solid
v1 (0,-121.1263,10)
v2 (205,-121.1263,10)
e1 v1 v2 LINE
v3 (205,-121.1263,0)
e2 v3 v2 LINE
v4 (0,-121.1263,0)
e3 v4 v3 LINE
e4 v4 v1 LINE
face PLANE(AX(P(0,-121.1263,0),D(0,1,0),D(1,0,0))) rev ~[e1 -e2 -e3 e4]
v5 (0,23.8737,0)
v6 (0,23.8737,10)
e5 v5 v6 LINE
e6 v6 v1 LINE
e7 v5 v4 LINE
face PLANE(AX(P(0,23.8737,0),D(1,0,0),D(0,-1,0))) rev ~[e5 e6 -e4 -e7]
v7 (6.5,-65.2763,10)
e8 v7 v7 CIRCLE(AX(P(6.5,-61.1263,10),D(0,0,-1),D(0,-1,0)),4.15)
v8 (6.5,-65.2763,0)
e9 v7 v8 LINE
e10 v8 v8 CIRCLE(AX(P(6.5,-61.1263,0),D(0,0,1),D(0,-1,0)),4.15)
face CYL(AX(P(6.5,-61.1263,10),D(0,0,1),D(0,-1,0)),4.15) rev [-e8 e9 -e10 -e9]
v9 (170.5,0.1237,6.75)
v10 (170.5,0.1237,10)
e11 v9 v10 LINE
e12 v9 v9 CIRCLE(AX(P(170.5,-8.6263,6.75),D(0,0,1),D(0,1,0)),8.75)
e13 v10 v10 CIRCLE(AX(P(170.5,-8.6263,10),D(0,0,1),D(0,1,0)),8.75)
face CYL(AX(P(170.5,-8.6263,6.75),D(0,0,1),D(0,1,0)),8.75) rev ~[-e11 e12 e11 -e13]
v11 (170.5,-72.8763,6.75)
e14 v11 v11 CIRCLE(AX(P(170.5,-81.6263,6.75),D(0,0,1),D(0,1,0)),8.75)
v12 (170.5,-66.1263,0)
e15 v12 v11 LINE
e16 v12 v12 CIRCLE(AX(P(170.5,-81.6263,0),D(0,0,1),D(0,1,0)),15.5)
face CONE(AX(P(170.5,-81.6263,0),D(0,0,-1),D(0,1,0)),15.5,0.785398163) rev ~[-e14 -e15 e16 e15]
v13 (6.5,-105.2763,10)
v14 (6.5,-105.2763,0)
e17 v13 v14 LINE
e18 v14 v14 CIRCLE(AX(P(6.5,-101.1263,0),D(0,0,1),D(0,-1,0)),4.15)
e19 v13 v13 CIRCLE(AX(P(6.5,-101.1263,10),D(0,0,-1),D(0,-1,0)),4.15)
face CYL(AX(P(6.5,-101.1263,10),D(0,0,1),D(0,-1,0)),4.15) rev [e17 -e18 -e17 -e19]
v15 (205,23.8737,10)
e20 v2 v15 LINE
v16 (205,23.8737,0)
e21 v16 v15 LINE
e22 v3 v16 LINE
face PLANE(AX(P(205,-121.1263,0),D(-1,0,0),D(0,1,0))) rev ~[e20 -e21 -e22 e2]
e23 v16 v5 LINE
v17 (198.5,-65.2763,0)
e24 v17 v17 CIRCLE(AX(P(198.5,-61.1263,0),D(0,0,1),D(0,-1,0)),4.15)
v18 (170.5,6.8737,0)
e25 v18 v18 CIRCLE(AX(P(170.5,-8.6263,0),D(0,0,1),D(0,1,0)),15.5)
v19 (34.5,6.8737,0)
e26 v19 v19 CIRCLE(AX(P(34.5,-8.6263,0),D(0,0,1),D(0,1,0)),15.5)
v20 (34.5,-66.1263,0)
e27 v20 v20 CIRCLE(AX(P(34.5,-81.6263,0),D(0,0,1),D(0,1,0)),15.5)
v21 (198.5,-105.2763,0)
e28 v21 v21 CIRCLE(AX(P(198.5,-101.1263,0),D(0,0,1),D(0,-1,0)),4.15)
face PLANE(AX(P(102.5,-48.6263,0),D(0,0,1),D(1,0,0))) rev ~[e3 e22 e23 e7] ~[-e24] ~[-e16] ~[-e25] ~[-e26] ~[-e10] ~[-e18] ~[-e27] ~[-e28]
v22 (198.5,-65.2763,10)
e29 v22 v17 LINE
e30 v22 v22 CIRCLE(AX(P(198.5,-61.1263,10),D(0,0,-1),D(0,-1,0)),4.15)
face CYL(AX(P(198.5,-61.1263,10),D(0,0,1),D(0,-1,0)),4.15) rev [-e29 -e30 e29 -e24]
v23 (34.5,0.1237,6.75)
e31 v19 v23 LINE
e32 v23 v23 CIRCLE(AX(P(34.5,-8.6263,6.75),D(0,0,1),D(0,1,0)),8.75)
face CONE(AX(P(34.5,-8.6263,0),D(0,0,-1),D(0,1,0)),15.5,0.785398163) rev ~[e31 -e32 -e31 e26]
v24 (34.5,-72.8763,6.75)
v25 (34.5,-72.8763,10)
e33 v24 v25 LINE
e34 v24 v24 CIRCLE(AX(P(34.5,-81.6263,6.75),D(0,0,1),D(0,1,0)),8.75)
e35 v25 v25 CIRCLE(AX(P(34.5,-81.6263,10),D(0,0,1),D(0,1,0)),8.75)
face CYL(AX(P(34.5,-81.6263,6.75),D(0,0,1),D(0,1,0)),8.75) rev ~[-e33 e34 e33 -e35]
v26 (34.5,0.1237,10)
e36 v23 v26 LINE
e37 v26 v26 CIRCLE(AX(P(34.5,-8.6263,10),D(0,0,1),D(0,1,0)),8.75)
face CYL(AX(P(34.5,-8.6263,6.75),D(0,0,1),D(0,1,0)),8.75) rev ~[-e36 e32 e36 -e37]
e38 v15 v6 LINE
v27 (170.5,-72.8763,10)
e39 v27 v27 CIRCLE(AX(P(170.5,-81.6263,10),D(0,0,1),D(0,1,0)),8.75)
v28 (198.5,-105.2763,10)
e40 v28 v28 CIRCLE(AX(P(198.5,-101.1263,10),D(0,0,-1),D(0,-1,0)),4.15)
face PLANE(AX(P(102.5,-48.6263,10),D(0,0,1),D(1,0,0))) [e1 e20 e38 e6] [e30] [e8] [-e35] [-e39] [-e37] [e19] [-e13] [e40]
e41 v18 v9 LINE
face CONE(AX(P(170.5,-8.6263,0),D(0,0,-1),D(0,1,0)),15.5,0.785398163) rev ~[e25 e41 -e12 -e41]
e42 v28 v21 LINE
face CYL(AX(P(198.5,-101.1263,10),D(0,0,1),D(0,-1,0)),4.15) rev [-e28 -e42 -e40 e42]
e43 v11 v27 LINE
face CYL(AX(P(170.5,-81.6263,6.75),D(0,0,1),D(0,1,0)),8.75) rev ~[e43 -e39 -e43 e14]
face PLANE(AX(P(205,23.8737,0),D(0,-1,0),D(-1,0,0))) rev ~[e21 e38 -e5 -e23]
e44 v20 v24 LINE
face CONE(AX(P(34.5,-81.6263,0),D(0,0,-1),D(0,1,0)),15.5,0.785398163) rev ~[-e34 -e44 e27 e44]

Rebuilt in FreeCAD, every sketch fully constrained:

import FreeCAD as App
import Part
import Sketcher

V = App.Vector
Q = App.Units.Quantity

doc = App.newDocument("Part")
params = doc.addObject("Spreadsheet::Sheet", "Params")
for row, (alias, value) in enumerate([
    ("sketch1_width", "205 mm"),
    ("sketch1_height", "145 mm"),
    ("pad1_length", "10 mm"),
    ("sketch2_diameter", "8.3 mm"),
    ("hole_diameter", "8.3 mm"),
    ("sketch3_diameter", "8.3 mm"),
    ("hole2_diameter", "8.3 mm"),
    ("sketch4_diameter", "8.3 mm"),
    ("hole3_diameter", "8.3 mm"),
    ("sketch5_diameter", "8.3 mm"),
    ("hole4_diameter", "8.3 mm"),
    ("sketch6_diameter", "17.5 mm"),
    ("hole5_diameter", "17.5 mm"),
    ("hole5_depth", "50.8 mm"),
    ("hole5_csink_diameter", "31 mm"),
    ("sketch7_diameter", "17.5 mm"),
    ("hole6_diameter", "17.5 mm"),
    ("hole6_depth", "50.8 mm"),
    ("hole6_csink_diameter", "31 mm"),
    ("sketch8_diameter", "17.5 mm"),
    ("hole7_diameter", "17.5 mm"),
    ("hole7_depth", "50.8 mm"),
    ("hole7_csink_diameter", "31 mm"),
    ("sketch9_diameter", "17.5 mm"),
    ("hole8_diameter", "17.5 mm"),
    ("hole8_depth", "50.8 mm"),
    ("hole8_csink_diameter", "31 mm"),
], start=1):
    params.set(f"A{row}", alias)
    params.set(f"B{row}", "=" + value)
    params.setAlias(f"B{row}", alias)

body = doc.addObject("PartDesign::Body", "Body")

sketch1 = body.newObject("Sketcher::SketchObject", "Sketch")
sketch1.AttachmentSupport = (doc.getObject("XY_Plane"), [""])
sketch1.MapMode = "FlatFace"
sketch1.addGeometry(Part.LineSegment(V(0, 24, 0), V(0, -121, 0)), False)
sketch1.addGeometry(Part.LineSegment(V(0, -121, 0), V(205, -121, 0)), False)
sketch1.addGeometry(Part.LineSegment(V(205, -121, 0), V(205, 24, 0)), False)
sketch1.addGeometry(Part.LineSegment(V(205, 24, 0), V(0, 24, 0)), False)
sketch1.addConstraint(Sketcher.Constraint("Coincident", 0, 2, 1, 1))
sketch1.addConstraint(Sketcher.Constraint("Coincident", 1, 2, 2, 1))
sketch1.addConstraint(Sketcher.Constraint("Coincident", 2, 2, 3, 1))
sketch1.addConstraint(Sketcher.Constraint("Coincident", 3, 2, 0, 1))
sketch1.addConstraint(Sketcher.Constraint("Vertical", 0))
sketch1.addConstraint(Sketcher.Constraint("Horizontal", 1))
sketch1.addConstraint(Sketcher.Constraint("Vertical", 2))
sketch1.addConstraint(Sketcher.Constraint("Horizontal", 3))
sketch1.addConstraint(Sketcher.Constraint("PointOnObject", 0, 2, -2))
sketch1.addConstraint(Sketcher.Constraint("DistanceX", 1, 1, 1, 2, Q("205 mm")))
sketch1.addConstraint(Sketcher.Constraint("DistanceY", 0, 2, 0, 1, Q("145 mm")))
sketch1.addConstraint(Sketcher.Constraint("DistanceY", 0, 2, -1, 1, Q("121.1263 mm")))
sketch1.setExpression("Constraints[9]", "Params.sketch1_width")
sketch1.setExpression("Constraints[10]", "Params.sketch1_height")
pad1 = body.newObject("PartDesign::Pad", "Pad")
pad1.Profile = sketch1
pad1.setExpression("Length", "Params.pad1_length")

sketch2 = body.newObject("Sketcher::SketchObject", "Sketch001")
sketch2.AttachmentSupport = (doc.getObject("XY_Plane"), [""])
sketch2.MapMode = "FlatFace"
sketch2.AttachmentOffset = App.Placement(V(0, 0, 10), App.Rotation())
sketch2.addGeometry(Part.Circle(V(198.5, -61.1, 0), V(0, 0, 1), 4.2), False)
sketch2.addConstraint(Sketcher.Constraint("Diameter", 0, Q("8.3 mm")))
sketch2.addConstraint(Sketcher.Constraint("DistanceX", -1, 1, 0, 3, Q("198.5 mm")))
sketch2.addConstraint(Sketcher.Constraint("DistanceY", 0, 3, -1, 1, Q("61.1263 mm")))
sketch2.setExpression("Constraints[0]", "Params.sketch2_diameter")
doc.recompute()
hole = body.newObject("PartDesign::Hole", "Hole")
hole.Profile = sketch2
hole.ThreadType = "None"
hole.setExpression("Diameter", "Params.hole_diameter")
hole.DepthType = "ThroughAll"

sketch3 = body.newObject("Sketcher::SketchObject", "Sketch002")
sketch3.AttachmentSupport = (doc.getObject("XY_Plane"), [""])
sketch3.MapMode = "FlatFace"
sketch3.AttachmentOffset = App.Placement(V(0, 0, 10), App.Rotation())
sketch3.addGeometry(Part.Circle(V(198.5, -101.1, 0), V(0, 0, 1), 4.2), False)
sketch3.addConstraint(Sketcher.Constraint("Diameter", 0, Q("8.3 mm")))
sketch3.addConstraint(Sketcher.Constraint("DistanceX", -1, 1, 0, 3, Q("198.5 mm")))
sketch3.addConstraint(Sketcher.Constraint("DistanceY", 0, 3, -1, 1, Q("101.1263 mm")))
sketch3.setExpression("Constraints[0]", "Params.sketch3_diameter")
doc.recompute()
hole2 = body.newObject("PartDesign::Hole", "Hole001")
hole2.Profile = sketch3
hole2.ThreadType = "None"
hole2.setExpression("Diameter", "Params.hole2_diameter")
hole2.DepthType = "ThroughAll"

sketch4 = body.newObject("Sketcher::SketchObject", "Sketch003")
sketch4.AttachmentSupport = (doc.getObject("XY_Plane"), [""])
sketch4.MapMode = "FlatFace"
sketch4.AttachmentOffset = App.Placement(V(0, 0, 10), App.Rotation())
sketch4.addGeometry(Part.Circle(V(6.5, -101.1, 0), V(0, 0, 1), 4.2), False)
sketch4.addConstraint(Sketcher.Constraint("Diameter", 0, Q("8.3 mm")))
sketch4.addConstraint(Sketcher.Constraint("DistanceX", -1, 1, 0, 3, Q("6.5 mm")))
sketch4.addConstraint(Sketcher.Constraint("DistanceY", 0, 3, -1, 1, Q("101.1263 mm")))
sketch4.setExpression("Constraints[0]", "Params.sketch4_diameter")
doc.recompute()
hole3 = body.newObject("PartDesign::Hole", "Hole002")
hole3.Profile = sketch4
hole3.ThreadType = "None"
hole3.setExpression("Diameter", "Params.hole3_diameter")
hole3.DepthType = "ThroughAll"

sketch5 = body.newObject("Sketcher::SketchObject", "Sketch004")
sketch5.AttachmentSupport = (doc.getObject("XY_Plane"), [""])
sketch5.MapMode = "FlatFace"
sketch5.AttachmentOffset = App.Placement(V(0, 0, 10), App.Rotation())
sketch5.addGeometry(Part.Circle(V(6.5, -61.1, 0), V(0, 0, 1), 4.2), False)
sketch5.addConstraint(Sketcher.Constraint("Diameter", 0, Q("8.3 mm")))
sketch5.addConstraint(Sketcher.Constraint("DistanceX", -1, 1, 0, 3, Q("6.5 mm")))
sketch5.addConstraint(Sketcher.Constraint("DistanceY", 0, 3, -1, 1, Q("61.1263 mm")))
sketch5.setExpression("Constraints[0]", "Params.sketch5_diameter")
doc.recompute()
hole4 = body.newObject("PartDesign::Hole", "Hole003")
hole4.Profile = sketch5
hole4.ThreadType = "None"
hole4.setExpression("Diameter", "Params.hole4_diameter")
hole4.DepthType = "ThroughAll"

sketch6 = body.newObject("Sketcher::SketchObject", "Sketch005")
sketch6.AttachmentSupport = (doc.getObject("XY_Plane"), [""])
sketch6.MapMode = "FlatFace"
sketch6.addGeometry(Part.Circle(V(34, -9, 0), V(0, 0, 1), 9), False)
sketch6.addConstraint(Sketcher.Constraint("Diameter", 0, Q("17.5 mm")))
sketch6.addConstraint(Sketcher.Constraint("DistanceX", -1, 1, 0, 3, Q("34.5 mm")))
sketch6.addConstraint(Sketcher.Constraint("DistanceY", 0, 3, -1, 1, Q("8.6263 mm")))
sketch6.setExpression("Constraints[0]", "Params.sketch6_diameter")
doc.recompute()
hole5 = body.newObject("PartDesign::Hole", "Hole004")
hole5.Profile = sketch6
hole5.ThreadType = "None"
hole5.setExpression("Diameter", "Params.hole5_diameter")
hole5.DepthType = "Dimension"
hole5.setExpression("Depth", "Params.hole5_depth")
hole5.DrillPoint = "Flat"
hole5.HoleCutType = "Countersink"
hole5.setExpression("HoleCutDiameter", "Params.hole5_csink_diameter")
hole5.HoleCutCountersinkAngle = 90
hole5.Reversed = True

sketch7 = body.newObject("Sketcher::SketchObject", "Sketch006")
sketch7.AttachmentSupport = (doc.getObject("XY_Plane"), [""])
sketch7.MapMode = "FlatFace"
sketch7.addGeometry(Part.Circle(V(34, -82, 0), V(0, 0, 1), 9), False)
sketch7.addConstraint(Sketcher.Constraint("Diameter", 0, Q("17.5 mm")))
sketch7.addConstraint(Sketcher.Constraint("DistanceX", -1, 1, 0, 3, Q("34.5 mm")))
sketch7.addConstraint(Sketcher.Constraint("DistanceY", 0, 3, -1, 1, Q("81.6263 mm")))
sketch7.setExpression("Constraints[0]", "Params.sketch7_diameter")
doc.recompute()
hole6 = body.newObject("PartDesign::Hole", "Hole005")
hole6.Profile = sketch7
hole6.ThreadType = "None"
hole6.setExpression("Diameter", "Params.hole6_diameter")
hole6.DepthType = "Dimension"
hole6.setExpression("Depth", "Params.hole6_depth")
hole6.DrillPoint = "Flat"
hole6.HoleCutType = "Countersink"
hole6.setExpression("HoleCutDiameter", "Params.hole6_csink_diameter")
hole6.HoleCutCountersinkAngle = 90
hole6.Reversed = True

sketch8 = body.newObject("Sketcher::SketchObject", "Sketch007")
sketch8.AttachmentSupport = (doc.getObject("XY_Plane"), [""])
sketch8.MapMode = "FlatFace"
sketch8.addGeometry(Part.Circle(V(170, -82, 0), V(0, 0, 1), 9), False)
sketch8.addConstraint(Sketcher.Constraint("Diameter", 0, Q("17.5 mm")))
sketch8.addConstraint(Sketcher.Constraint("DistanceX", -1, 1, 0, 3, Q("170.5 mm")))
sketch8.addConstraint(Sketcher.Constraint("DistanceY", 0, 3, -1, 1, Q("81.6263 mm")))
sketch8.setExpression("Constraints[0]", "Params.sketch8_diameter")
doc.recompute()
hole7 = body.newObject("PartDesign::Hole", "Hole006")
hole7.Profile = sketch8
hole7.ThreadType = "None"
hole7.setExpression("Diameter", "Params.hole7_diameter")
hole7.DepthType = "Dimension"
hole7.setExpression("Depth", "Params.hole7_depth")
hole7.DrillPoint = "Flat"
hole7.HoleCutType = "Countersink"
hole7.setExpression("HoleCutDiameter", "Params.hole7_csink_diameter")
hole7.HoleCutCountersinkAngle = 90
hole7.Reversed = True

sketch9 = body.newObject("Sketcher::SketchObject", "Sketch008")
sketch9.AttachmentSupport = (doc.getObject("XY_Plane"), [""])
sketch9.MapMode = "FlatFace"
sketch9.addGeometry(Part.Circle(V(170, -9, 0), V(0, 0, 1), 9), False)
sketch9.addConstraint(Sketcher.Constraint("Diameter", 0, Q("17.5 mm")))
sketch9.addConstraint(Sketcher.Constraint("DistanceX", -1, 1, 0, 3, Q("170.5 mm")))
sketch9.addConstraint(Sketcher.Constraint("DistanceY", 0, 3, -1, 1, Q("8.6263 mm")))
sketch9.setExpression("Constraints[0]", "Params.sketch9_diameter")
doc.recompute()
hole8 = body.newObject("PartDesign::Hole", "Hole007")
hole8.Profile = sketch9
hole8.ThreadType = "None"
hole8.setExpression("Diameter", "Params.hole8_diameter")
hole8.DepthType = "Dimension"
hole8.setExpression("Depth", "Params.hole8_depth")
hole8.DrillPoint = "Flat"
hole8.HoleCutType = "Countersink"
hole8.setExpression("HoleCutDiameter", "Params.hole8_csink_diameter")
hole8.HoleCutCountersinkAngle = 90
hole8.Reversed = True

doc.recompute()
